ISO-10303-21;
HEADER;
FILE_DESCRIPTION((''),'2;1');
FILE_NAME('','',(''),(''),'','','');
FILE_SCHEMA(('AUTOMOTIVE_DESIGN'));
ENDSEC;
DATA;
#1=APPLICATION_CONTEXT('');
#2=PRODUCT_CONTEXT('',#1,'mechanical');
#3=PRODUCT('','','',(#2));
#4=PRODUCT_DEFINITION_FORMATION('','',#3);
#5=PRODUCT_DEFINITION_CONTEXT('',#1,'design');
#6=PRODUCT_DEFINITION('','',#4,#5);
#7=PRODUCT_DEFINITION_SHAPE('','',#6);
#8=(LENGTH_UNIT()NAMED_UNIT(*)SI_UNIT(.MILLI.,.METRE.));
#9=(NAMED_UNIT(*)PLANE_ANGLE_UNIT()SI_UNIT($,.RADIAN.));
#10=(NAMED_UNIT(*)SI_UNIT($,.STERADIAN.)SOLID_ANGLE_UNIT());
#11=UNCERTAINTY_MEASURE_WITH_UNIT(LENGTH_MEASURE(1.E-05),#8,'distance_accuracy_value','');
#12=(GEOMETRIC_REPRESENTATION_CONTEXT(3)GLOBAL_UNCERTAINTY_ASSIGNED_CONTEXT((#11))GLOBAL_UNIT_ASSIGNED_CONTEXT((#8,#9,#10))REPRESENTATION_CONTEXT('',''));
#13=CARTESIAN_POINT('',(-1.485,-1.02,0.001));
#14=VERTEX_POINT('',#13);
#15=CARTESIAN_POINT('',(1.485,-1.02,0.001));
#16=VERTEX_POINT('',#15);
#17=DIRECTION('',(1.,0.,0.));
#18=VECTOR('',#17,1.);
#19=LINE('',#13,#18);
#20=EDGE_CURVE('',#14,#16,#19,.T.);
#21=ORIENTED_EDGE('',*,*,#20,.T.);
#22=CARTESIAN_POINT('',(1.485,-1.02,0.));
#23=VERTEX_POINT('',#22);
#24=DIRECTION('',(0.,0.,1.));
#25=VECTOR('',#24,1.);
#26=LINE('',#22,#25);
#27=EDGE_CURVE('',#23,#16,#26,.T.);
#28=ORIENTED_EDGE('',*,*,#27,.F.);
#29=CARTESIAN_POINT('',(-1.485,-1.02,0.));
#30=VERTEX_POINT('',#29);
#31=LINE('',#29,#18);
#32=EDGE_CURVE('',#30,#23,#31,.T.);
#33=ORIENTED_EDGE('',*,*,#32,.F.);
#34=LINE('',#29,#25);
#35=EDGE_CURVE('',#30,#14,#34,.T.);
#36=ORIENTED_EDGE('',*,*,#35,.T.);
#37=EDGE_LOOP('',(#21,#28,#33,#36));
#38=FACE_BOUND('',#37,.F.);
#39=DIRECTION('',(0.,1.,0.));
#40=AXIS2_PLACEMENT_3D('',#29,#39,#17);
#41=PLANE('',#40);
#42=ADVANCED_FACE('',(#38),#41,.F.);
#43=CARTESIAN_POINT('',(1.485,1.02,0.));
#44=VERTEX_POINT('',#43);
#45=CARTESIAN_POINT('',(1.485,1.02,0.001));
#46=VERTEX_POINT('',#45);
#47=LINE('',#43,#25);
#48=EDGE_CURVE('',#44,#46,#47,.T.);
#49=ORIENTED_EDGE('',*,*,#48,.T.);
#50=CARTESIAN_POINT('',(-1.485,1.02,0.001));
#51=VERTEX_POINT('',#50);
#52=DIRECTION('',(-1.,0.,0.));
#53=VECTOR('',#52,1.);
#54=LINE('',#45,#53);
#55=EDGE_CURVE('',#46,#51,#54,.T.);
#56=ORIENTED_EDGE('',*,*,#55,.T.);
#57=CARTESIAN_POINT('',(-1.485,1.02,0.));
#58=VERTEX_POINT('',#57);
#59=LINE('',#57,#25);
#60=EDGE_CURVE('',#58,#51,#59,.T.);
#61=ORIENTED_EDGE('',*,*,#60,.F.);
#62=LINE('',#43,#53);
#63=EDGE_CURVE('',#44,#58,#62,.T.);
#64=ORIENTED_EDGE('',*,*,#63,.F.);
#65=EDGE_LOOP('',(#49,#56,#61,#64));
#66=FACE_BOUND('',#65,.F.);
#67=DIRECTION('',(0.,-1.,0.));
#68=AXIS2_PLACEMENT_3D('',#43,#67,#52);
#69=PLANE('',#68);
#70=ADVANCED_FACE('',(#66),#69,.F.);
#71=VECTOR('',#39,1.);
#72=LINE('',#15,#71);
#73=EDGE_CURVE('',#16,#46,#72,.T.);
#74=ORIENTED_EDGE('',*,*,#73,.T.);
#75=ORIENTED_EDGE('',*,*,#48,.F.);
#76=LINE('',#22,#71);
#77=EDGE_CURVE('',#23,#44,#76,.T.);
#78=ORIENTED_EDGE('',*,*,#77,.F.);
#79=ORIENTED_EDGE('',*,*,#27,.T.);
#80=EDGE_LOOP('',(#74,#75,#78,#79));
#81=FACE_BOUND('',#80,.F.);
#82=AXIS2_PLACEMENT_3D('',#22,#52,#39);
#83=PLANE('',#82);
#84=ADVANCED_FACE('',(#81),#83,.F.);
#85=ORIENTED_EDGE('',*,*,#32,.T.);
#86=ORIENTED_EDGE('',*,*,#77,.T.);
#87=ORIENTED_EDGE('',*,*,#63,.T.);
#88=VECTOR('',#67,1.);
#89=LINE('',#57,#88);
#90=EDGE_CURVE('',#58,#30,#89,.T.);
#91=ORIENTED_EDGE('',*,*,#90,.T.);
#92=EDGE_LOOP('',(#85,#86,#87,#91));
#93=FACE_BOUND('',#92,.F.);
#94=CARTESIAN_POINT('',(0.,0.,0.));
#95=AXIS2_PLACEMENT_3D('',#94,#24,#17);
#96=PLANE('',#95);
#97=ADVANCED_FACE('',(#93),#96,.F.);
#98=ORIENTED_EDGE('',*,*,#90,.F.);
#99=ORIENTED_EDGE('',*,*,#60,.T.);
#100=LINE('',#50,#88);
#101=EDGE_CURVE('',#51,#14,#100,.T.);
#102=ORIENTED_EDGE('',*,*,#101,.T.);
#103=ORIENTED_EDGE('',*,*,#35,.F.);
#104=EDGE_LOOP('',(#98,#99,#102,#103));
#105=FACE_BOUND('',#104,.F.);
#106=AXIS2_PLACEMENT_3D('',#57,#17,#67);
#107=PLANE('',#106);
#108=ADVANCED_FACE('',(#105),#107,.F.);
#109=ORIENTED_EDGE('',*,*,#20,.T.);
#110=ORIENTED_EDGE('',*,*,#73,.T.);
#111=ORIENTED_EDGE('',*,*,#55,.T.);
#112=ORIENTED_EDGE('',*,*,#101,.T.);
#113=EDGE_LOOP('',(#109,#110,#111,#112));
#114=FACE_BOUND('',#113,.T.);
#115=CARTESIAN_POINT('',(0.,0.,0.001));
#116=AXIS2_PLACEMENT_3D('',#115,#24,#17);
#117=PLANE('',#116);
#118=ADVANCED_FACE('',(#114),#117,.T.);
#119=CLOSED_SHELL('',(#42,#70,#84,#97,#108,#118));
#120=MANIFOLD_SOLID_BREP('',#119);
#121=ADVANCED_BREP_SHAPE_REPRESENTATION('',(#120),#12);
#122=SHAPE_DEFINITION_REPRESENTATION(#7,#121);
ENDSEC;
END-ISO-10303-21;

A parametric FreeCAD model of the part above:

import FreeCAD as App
import Part
import Sketcher
from FreeCAD import Vector

doc = App.newDocument("Part")
body = doc.addObject("PartDesign::Body", "Body")

# Sketch on XY plane
sketch1 = doc.addObject("Sketcher::SketchObject", "Sketch")
body.addObject(sketch1)
sketch1.AttachmentSupport = (doc.XY_Plane, [""])
sketch1.MapMode = "FlatFace"
sketch1.addGeometry(Part.LineSegment(Vector(-1.5, 1, 0), Vector(-1.5, -1, 0)), False)
sketch1.addGeometry(Part.LineSegment(Vector(-1.5, -1, 0), Vector(1.5, -1, 0)), False)
sketch1.addGeometry(Part.LineSegment(Vector(1.5, -1, 0), Vector(1.5, 1, 0)), False)
sketch1.addGeometry(Part.LineSegment(Vector(1.5, 1, 0), Vector(-1.5, 1, 0)), False)
sketch1.addConstraint(Sketcher.Constraint("Coincident", 0, 2, 1, 1))
sketch1.addConstraint(Sketcher.Constraint("Coincident", 1, 2, 2, 1))
sketch1.addConstraint(Sketcher.Constraint("Coincident", 2, 2, 3, 1))
sketch1.addConstraint(Sketcher.Constraint("Coincident", 3, 2, 0, 1))
sketch1.addConstraint(Sketcher.Constraint("Vertical", 0))
sketch1.addConstraint(Sketcher.Constraint("Horizontal", 1))
sketch1.addConstraint(Sketcher.Constraint("Vertical", 2))
sketch1.addConstraint(Sketcher.Constraint("Horizontal", 3))
sketch1.addConstraint(Sketcher.Constraint("Symmetric", 0, 2, 2, 2, -1, 1))
sketch1.addConstraint(Sketcher.Constraint("DistanceX", 0, 2, -1, 1, 1.485))
sketch1.addConstraint(Sketcher.Constraint("DistanceY", 0, 2, 0, 1, 2.04))
pad1 = doc.addObject("PartDesign::Pad", "Pad")
body.addObject(pad1)
pad1.Profile = sketch1
pad1.Length = 0.001

doc.recompute()
